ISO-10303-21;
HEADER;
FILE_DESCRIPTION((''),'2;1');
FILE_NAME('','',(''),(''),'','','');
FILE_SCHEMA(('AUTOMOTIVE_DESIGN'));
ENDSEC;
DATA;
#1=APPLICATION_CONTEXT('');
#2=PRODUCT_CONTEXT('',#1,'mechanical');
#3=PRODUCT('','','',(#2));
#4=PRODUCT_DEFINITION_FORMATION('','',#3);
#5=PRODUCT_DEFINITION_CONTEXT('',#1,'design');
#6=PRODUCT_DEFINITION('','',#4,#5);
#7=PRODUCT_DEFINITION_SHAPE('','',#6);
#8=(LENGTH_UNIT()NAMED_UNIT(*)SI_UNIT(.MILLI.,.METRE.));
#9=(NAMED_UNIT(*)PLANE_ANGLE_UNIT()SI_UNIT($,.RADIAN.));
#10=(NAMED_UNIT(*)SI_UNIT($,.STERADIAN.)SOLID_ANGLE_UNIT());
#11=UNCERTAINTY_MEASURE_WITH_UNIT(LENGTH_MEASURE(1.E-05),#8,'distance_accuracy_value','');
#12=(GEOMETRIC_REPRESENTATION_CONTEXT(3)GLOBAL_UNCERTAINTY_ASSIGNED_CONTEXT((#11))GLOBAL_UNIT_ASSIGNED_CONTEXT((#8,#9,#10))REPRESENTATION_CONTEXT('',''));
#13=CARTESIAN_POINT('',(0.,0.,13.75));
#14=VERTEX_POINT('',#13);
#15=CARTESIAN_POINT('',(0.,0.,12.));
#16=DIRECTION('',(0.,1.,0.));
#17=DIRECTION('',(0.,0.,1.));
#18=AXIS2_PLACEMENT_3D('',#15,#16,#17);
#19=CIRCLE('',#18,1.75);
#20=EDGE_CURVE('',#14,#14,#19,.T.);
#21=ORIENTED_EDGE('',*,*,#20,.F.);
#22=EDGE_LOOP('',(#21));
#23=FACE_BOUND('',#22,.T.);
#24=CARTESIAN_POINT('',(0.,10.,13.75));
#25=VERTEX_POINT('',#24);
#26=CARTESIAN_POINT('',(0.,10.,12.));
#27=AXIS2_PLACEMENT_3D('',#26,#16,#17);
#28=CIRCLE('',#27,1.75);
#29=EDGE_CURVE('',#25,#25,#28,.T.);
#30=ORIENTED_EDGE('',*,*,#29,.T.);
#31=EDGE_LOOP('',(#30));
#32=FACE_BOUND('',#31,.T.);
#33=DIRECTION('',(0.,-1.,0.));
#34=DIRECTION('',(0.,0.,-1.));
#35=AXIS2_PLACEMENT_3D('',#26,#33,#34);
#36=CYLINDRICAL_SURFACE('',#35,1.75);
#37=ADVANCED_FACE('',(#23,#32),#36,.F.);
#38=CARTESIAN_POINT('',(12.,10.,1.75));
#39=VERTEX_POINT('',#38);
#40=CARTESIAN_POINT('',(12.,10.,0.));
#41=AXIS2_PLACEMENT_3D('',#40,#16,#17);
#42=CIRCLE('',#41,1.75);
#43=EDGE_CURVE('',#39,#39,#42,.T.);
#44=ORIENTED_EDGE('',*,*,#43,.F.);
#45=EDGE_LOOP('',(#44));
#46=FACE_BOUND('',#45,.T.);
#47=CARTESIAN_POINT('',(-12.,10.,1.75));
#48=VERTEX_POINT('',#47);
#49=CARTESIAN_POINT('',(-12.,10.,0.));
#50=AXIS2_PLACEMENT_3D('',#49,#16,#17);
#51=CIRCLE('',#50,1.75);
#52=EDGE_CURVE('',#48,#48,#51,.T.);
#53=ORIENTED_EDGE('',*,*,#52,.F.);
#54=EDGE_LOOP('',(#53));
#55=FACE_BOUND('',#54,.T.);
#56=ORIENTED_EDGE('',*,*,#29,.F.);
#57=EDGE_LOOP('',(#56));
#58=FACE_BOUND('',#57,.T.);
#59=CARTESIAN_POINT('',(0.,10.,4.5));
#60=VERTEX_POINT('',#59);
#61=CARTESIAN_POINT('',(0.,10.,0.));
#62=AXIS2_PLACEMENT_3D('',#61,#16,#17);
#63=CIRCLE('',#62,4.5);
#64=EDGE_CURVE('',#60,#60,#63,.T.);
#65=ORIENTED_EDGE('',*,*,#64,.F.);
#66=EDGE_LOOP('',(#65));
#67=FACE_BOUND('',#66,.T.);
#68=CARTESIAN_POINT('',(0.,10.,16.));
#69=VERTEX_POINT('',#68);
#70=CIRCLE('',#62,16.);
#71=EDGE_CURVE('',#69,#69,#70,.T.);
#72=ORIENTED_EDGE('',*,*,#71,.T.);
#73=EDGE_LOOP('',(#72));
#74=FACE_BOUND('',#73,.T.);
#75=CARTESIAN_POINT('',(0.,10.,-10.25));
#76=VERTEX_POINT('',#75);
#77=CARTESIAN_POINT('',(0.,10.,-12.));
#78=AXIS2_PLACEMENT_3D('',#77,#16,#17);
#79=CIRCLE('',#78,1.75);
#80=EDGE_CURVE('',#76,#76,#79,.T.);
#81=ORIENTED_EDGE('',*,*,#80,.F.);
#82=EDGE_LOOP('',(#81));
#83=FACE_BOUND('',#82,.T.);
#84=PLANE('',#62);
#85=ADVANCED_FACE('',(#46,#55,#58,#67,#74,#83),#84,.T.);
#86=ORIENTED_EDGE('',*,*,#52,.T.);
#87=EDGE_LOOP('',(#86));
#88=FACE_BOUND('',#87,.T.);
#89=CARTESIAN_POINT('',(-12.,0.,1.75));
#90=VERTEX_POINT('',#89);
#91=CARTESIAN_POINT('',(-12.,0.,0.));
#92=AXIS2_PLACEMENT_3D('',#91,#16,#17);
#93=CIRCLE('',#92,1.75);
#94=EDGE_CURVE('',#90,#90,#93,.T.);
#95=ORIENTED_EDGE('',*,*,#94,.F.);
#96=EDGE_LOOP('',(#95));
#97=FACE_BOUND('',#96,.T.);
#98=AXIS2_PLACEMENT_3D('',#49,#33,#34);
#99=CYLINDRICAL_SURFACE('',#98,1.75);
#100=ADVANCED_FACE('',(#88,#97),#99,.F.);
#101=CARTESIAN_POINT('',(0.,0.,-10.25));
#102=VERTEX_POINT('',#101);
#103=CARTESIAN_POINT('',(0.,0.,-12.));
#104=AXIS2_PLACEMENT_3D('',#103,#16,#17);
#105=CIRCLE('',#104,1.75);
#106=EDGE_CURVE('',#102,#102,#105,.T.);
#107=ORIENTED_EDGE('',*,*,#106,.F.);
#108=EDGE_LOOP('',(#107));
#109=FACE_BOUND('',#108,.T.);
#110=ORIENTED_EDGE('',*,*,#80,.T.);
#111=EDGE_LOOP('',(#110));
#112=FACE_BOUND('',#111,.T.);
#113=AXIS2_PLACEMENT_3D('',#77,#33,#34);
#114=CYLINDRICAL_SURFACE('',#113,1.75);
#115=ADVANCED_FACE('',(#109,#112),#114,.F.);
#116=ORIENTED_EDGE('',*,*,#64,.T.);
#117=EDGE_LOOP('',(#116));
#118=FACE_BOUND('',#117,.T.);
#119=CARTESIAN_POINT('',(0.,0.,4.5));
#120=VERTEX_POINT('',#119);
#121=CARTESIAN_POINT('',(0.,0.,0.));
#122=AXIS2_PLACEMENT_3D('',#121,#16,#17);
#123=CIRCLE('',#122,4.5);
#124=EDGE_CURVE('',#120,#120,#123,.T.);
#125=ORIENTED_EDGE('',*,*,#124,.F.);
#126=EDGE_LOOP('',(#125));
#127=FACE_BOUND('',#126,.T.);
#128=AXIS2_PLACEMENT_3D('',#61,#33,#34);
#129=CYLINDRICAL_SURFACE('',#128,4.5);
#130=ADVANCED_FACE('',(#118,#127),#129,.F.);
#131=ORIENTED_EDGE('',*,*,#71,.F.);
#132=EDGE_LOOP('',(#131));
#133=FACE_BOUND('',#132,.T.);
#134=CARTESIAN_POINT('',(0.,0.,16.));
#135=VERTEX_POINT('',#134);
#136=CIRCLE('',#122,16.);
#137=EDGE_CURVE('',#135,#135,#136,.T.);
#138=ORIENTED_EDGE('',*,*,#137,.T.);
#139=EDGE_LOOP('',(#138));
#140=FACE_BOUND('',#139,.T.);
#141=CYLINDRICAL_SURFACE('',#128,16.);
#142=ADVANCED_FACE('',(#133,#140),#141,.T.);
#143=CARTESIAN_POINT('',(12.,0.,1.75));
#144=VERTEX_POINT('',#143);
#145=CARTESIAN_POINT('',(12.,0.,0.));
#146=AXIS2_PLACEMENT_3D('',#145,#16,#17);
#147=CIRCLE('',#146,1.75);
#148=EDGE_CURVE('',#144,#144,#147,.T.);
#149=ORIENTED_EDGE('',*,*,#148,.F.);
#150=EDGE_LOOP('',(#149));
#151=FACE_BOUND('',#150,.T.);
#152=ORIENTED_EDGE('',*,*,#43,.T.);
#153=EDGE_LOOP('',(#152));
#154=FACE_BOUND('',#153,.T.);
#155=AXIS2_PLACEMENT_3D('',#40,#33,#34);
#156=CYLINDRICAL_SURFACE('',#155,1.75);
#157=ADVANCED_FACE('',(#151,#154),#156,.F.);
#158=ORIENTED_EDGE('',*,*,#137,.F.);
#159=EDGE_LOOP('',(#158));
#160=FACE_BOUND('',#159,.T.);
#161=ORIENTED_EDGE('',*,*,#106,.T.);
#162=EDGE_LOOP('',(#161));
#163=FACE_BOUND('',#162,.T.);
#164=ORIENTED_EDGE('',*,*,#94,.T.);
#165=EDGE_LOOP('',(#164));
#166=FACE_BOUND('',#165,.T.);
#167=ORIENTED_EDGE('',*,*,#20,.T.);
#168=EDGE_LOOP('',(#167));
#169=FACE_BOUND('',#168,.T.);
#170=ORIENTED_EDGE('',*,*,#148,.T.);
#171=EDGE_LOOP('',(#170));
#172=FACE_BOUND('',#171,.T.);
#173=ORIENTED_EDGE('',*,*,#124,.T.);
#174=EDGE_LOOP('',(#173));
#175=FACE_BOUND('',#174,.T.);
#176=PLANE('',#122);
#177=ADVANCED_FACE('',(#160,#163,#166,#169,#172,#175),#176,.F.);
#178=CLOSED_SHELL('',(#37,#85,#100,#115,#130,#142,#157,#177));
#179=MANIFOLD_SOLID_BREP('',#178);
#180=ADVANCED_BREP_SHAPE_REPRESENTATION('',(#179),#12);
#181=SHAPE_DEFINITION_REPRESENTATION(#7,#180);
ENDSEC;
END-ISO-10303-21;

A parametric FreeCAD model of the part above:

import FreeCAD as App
import Part
import Sketcher

V = App.Vector
Q = App.Units.Quantity

doc = App.newDocument("Part")
params = doc.addObject("Spreadsheet::Sheet", "Params")
for row, (alias, value) in enumerate([
    ("sketch1_diameter", "32 mm"),
    ("sketch1_diameter2", "9 mm"),
    ("sketch1_diameter3", "3.5 mm"),
    ("pad1_length", "10 mm"),
], start=1):
    params.set(f"A{row}", alias)
    params.set(f"B{row}", "=" + value)
    params.setAlias(f"B{row}", alias)

body = doc.addObject("PartDesign::Body", "Body")

# Sketch on XZ plane
sketch1 = body.newObject("Sketcher::SketchObject", "Sketch")
sketch1.AttachmentSupport = (doc.getObject("XZ_Plane"), [""])
sketch1.MapMode = "FlatFace"
sketch1.addGeometry(Part.Circle(V(0, 0, 0), V(0, 0, 1), 16), False)
sketch1.addGeometry(Part.Circle(V(0, -12, 0), V(0, 0, 1), 1.75), False)
sketch1.addGeometry(Part.Circle(V(-12, 0, 0), V(0, 0, 1), 1.75), False)
sketch1.addGeometry(Part.Circle(V(12, 0, 0), V(0, 0, 1), 1.75), False)
sketch1.addGeometry(Part.Circle(V(0, 0, 0), V(0, 0, 1), 4.5), False)
sketch1.addGeometry(Part.Circle(V(0, 12, 0), V(0, 0, 1), 1.75), False)
sketch1.addConstraint(Sketcher.Constraint("Coincident", 0, 3, -1, 1))
sketch1.addConstraint(Sketcher.Constraint("Coincident", 4, 3, -1, 1))
sketch1.addConstraint(Sketcher.Constraint("Equal", 1, 2))
sketch1.addConstraint(Sketcher.Constraint("Equal", 2, 3))
sketch1.addConstraint(Sketcher.Constraint("Equal", 3, 5))
sketch1.addConstraint(Sketcher.Constraint("Symmetric", 2, 3, 3, 3, -1, 1))
sketch1.addConstraint(Sketcher.Constraint("Symmetric", 1, 3, 5, 3, -1, 1))
sketch1.addConstraint(Sketcher.Constraint("PointOnObject", 1, 3, -2))
sketch1.addConstraint(Sketcher.Constraint("PointOnObject", 2, 3, -1))
sketch1.addConstraint(Sketcher.Constraint("Diameter", 0, Q("32 mm")))
sketch1.addConstraint(Sketcher.Constraint("Diameter", 4, Q("9 mm")))
sketch1.addConstraint(Sketcher.Constraint("Diameter", 1, Q("3.5 mm")))
sketch1.addConstraint(Sketcher.Constraint("DistanceY", 1, 3, -1, 1, Q("12 mm")))
sketch1.addConstraint(Sketcher.Constraint("DistanceX", 2, 3, -1, 1, Q("12 mm")))
sketch1.setExpression("Constraints[9]", "Params.sketch1_diameter")
sketch1.setExpression("Constraints[10]", "Params.sketch1_diameter2")
sketch1.setExpression("Constraints[11]", "Params.sketch1_diameter3")
pad1 = body.newObject("PartDesign::Pad", "Pad")
pad1.Profile = sketch1
pad1.setExpression("Length", "Params.pad1_length")
pad1.Reversed = True

doc.recompute()
